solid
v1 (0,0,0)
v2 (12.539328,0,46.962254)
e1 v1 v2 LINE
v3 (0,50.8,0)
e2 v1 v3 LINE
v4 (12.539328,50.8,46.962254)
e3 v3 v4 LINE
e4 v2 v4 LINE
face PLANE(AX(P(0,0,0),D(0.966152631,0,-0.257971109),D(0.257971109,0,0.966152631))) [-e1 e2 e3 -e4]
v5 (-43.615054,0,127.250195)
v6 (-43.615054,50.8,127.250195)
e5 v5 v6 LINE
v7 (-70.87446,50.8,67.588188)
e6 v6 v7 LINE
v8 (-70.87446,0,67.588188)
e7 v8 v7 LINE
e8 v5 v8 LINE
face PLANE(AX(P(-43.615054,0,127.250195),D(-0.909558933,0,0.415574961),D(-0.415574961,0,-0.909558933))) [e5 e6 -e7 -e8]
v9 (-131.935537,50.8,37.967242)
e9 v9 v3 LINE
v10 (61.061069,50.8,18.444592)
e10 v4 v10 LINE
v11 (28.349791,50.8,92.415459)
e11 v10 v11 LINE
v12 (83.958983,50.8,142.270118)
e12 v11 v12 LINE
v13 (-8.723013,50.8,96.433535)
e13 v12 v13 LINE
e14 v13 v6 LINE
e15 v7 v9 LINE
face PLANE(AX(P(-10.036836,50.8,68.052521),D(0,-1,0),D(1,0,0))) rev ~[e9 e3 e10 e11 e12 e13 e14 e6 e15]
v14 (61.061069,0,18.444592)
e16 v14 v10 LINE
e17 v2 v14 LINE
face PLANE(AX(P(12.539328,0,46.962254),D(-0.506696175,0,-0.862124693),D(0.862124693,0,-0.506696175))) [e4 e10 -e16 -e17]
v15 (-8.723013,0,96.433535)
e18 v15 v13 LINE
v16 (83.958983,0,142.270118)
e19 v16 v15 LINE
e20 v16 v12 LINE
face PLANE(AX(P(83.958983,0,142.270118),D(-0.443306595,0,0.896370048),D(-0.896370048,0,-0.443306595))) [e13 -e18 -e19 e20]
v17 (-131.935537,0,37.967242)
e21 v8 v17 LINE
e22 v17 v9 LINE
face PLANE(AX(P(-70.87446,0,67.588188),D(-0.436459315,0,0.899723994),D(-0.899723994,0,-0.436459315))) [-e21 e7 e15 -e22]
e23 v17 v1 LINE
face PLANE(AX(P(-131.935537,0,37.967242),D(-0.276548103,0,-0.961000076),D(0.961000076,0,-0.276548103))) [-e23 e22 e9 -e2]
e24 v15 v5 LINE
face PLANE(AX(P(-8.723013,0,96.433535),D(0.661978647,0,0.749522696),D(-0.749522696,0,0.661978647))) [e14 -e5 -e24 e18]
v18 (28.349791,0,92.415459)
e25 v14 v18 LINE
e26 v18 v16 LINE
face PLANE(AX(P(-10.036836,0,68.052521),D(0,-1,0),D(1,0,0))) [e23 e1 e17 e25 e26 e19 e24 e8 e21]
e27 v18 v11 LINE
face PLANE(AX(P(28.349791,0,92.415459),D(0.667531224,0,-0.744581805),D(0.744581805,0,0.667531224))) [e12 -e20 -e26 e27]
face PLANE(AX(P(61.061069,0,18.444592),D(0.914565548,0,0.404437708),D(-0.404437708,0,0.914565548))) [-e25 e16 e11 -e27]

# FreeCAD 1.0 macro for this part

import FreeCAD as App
import Part
import Sketcher

V = App.Vector
Q = App.Units.Quantity

doc = App.newDocument("Part")
body = doc.addObject("PartDesign::Body", "Body")

sketch1 = body.newObject("Sketcher::SketchObject", "Sketch")
sketch1.AttachmentSupport = (doc.getObject("XZ_Plane"), [""])
sketch1.MapMode = "FlatFace"
sketch1.addGeometry(Part.LineSegment(V(-132, 38, 0), V(0, 0, 0)), False)
sketch1.addGeometry(Part.LineSegment(V(0, 0, 0), V(13, 47, 0)), False)
sketch1.addGeometry(Part.LineSegment(V(13, 47, 0), V(61, 18, 0)), False)
sketch1.addGeometry(Part.LineSegment(V(61, 18, 0), V(28, 92, 0)), False)
sketch1.addGeometry(Part.LineSegment(V(28, 92, 0), V(84, 142, 0)), False)
sketch1.addGeometry(Part.LineSegment(V(84, 142, 0), V(-9, 96, 0)), False)
sketch1.addGeometry(Part.LineSegment(V(-9, 96, 0), V(-44, 127, 0)), False)
sketch1.addGeometry(Part.LineSegment(V(-44, 127, 0), V(-71, 68, 0)), False)
sketch1.addGeometry(Part.LineSegment(V(-71, 68, 0), V(-132, 38, 0)), False)
sketch1.addConstraint(Sketcher.Constraint("Coincident", 0, 2, 1, 1))
sketch1.addConstraint(Sketcher.Constraint("Coincident", 1, 2, 2, 1))
sketch1.addConstraint(Sketcher.Constraint("Coincident", 2, 2, 3, 1))
sketch1.addConstraint(Sketcher.Constraint("Coincident", 3, 2, 4, 1))
sketch1.addConstraint(Sketcher.Constraint("Coincident", 4, 2, 5, 1))
sketch1.addConstraint(Sketcher.Constraint("Coincident", 5, 2, 6, 1))
sketch1.addConstraint(Sketcher.Constraint("Coincident", 6, 2, 7, 1))
sketch1.addConstraint(Sketcher.Constraint("Coincident", 7, 2, 8, 1))
sketch1.addConstraint(Sketcher.Constraint("Coincident", 8, 2, 0, 1))
sketch1.addConstraint(Sketcher.Constraint("Coincident", 0, 2, -1, 1))
sketch1.addConstraint(Sketcher.Constraint("DistanceX", 5, 2, 1, 2, Q("0.8371 in")))
sketch1.addConstraint(Sketcher.Constraint("DistanceX", 6, 2, 4, 2, Q("5.0225999 in")))
sketch1.addConstraint(Sketcher.Constraint("Distance", 0, 137.28983))
sketch1.addConstraint(Sketcher.Constraint("Distance", 1, 48.60749))
sketch1.addConstraint(Sketcher.Constraint("Distance", 2, 56.281581))
sketch1.addConstraint(Sketcher.Constraint("Distance", 3, 80.880881))
sketch1.addConstraint(Sketcher.Constraint("DistanceX", -1, 1, 2, 2, 61.061069))
sketch1.addConstraint(Sketcher.Constraint("DistanceY", -1, 1, 2, 2, 18.444592))
sketch1.addConstraint(Sketcher.Constraint("DistanceX", -1, 1, 3, 2, 28.349791))
sketch1.addConstraint(Sketcher.Constraint("DistanceY", -1, 1, 4, 2, 142.270118))
sketch1.addConstraint(Sketcher.Constraint("DistanceX", 7, 2, -1, 1, 70.87446))
sketch1.addConstraint(Sketcher.Constraint("DistanceY", -1, 1, 7, 2, 67.588188))
sketch1.addConstraint(Sketcher.Constraint("DistanceY", 1, 2, 5, 2, 49.471281))
sketch1.addConstraint(Sketcher.Constraint("DistanceX", 6, 2, 5, 2, 34.892041))
sketch1.addConstraint(Sketcher.Constraint("DistanceY", 5, 2, 6, 2, 30.81666))
sketch1.addConstraint(Sketcher.Constraint("Distance", 8, 67.866454))
pad1 = body.newObject("PartDesign::Pad", "Pad")
pad1.Profile = sketch1
pad1.Length = Q("2 in")
pad1.Reversed = True

doc.recompute()
